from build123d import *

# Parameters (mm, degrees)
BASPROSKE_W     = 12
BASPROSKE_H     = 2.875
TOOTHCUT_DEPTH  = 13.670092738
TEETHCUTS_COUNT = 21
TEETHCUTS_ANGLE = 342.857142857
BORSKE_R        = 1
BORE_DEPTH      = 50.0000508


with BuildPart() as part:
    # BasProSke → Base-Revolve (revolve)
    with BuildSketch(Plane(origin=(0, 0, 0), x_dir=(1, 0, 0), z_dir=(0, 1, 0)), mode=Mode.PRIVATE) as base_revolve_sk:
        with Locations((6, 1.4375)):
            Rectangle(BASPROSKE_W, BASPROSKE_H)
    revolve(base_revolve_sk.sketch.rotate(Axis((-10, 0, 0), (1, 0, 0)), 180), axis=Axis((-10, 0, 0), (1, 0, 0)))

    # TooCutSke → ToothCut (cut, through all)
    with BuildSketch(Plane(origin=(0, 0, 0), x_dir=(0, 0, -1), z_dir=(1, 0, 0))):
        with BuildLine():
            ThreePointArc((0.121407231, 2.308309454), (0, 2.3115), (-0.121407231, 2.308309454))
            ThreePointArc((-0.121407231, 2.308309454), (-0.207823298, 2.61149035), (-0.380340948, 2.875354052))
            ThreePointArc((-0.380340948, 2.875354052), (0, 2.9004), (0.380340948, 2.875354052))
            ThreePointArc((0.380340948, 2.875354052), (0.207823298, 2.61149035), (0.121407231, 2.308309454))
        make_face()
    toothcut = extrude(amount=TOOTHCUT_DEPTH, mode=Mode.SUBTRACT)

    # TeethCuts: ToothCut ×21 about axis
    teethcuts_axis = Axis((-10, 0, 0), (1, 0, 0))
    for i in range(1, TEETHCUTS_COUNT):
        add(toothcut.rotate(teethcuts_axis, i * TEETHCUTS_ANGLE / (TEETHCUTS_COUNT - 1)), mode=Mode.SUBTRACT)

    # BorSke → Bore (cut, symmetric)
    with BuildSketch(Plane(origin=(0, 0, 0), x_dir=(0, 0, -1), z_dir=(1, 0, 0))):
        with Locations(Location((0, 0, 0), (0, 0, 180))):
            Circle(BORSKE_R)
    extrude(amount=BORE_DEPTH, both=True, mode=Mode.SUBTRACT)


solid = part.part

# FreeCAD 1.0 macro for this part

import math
import FreeCAD as App
import Part
import Sketcher

V = App.Vector

doc = App.newDocument("Part")
params = doc.addObject("Spreadsheet::Sheet", "Params")
for row, (alias, value) in enumerate([
    ("sketch1_width", "12 mm"),
    ("revolution_angle", "360 deg"),
    ("sketch2_radius", "1.05 mm"),
    ("sketch3_diameter", "2 mm"),
    ("pocket2_length", "100.000102 mm"),
], start=1):
    params.set(f"A{row}", alias)
    params.set(f"B{row}", "=" + value)
    params.setAlias(f"B{row}", alias)

body = doc.addObject("PartDesign::Body", "Body")

# Sketch on XZ plane
sketch1 = body.newObject("Sketcher::SketchObject", "Sketch")
sketch1.AttachmentSupport = (doc.getObject("XZ_Plane"), [""])
sketch1.MapMode = "FlatFace"
sketch1.addGeometry([
    Part.LineSegment(V(0, -2.9, 0), V(0, 0, 0)),
    Part.LineSegment(V(0, 0, 0), V(12, 0, 0)),
    Part.LineSegment(V(12, 0, 0), V(12, -2.9, 0)),
    Part.LineSegment(V(12, -2.9, 0), V(0, -2.9, 0)),
], False)
sketch1.addConstraint([
    Sketcher.Constraint("Coincident", 0, 2, 1, 1),
    Sketcher.Constraint("Coincident", 1, 2, 2, 1),
    Sketcher.Constraint("Coincident", 2, 2, 3, 1),
    Sketcher.Constraint("Coincident", 3, 2, 0, 1),
    Sketcher.Constraint("Vertical", 0),
    Sketcher.Constraint("Horizontal", 1),
    Sketcher.Constraint("Vertical", 2),
    Sketcher.Constraint("Horizontal", 3),
    Sketcher.Constraint("Coincident", 0, 2, -1, 1),
    Sketcher.Constraint("DistanceX", 1, 1, 1, 2, 12.0),
    Sketcher.Constraint("DistanceY", 0, 1, 0, 2, 2.875),
])
sketch1.setExpression("Constraints[9]", "Params.sketch1_width")
revolution = body.newObject("PartDesign::Revolution", "Revolution")
revolution.Profile = sketch1
revolution.ReferenceAxis = (sketch1, ["H_Axis"])
revolution.setExpression("Angle", "Params.revolution_angle")

# Sketch on YZ plane
sketch2 = body.newObject("Sketcher::SketchObject", "Sketch001")
sketch2.AttachmentSupport = (doc.getObject("YZ_Plane"), [""])
sketch2.MapMode = "FlatFace"
sketch2.addGeometry([
    Part.ArcOfCircle(Part.Circle(V(0, 0, 0), V(0, 0, 1), 2.31), math.radians(-3.01), math.radians(3.01)),
    Part.ArcOfCircle(Part.Circle(V(2.18, -1.16, 0), V(0, 0, 1), 1.05), math.radians(48), math.radians(83)),
    Part.ArcOfCircle(Part.Circle(V(0, 0, 0), V(0, 0, 1), 2.9), math.radians(-7.54), math.radians(7.54)),
    Part.ArcOfCircle(Part.Circle(V(2.18, 1.16, 0), V(0, 0, 1), 1.05), math.radians(-83), math.radians(-48)),
], False)
sketch2.addConstraint([
    Sketcher.Constraint("Coincident", 0, 1, 1, 2),
    Sketcher.Constraint("Coincident", 1, 1, 2, 1),
    Sketcher.Constraint("Coincident", 2, 2, 3, 2),
    Sketcher.Constraint("Coincident", 3, 1, 0, 2),
    Sketcher.Constraint("Coincident", 0, 3, -1, 1),
    Sketcher.Constraint("Coincident", 2, 3, -1, 1),
    Sketcher.Constraint("Equal", 1, 3),
    Sketcher.Constraint("Symmetric", 1, 3, 3, 3, -1),
    Sketcher.Constraint("Radius", 1, 1.05),
    Sketcher.Constraint("Radius", 0, 2.3115),
    Sketcher.Constraint("Radius", 2, 2.9004),
    Sketcher.Constraint("DistanceX", -1, 1, 0, 1, 2.308309),
    Sketcher.Constraint("DistanceY", 1, 1, -1, 1, 0.380341),
])
sketch2.setExpression("Constraints[8]", "Params.sketch2_radius")
pocket1 = body.newObject("PartDesign::Pocket", "Pocket")
pocket1.Profile = sketch2
pocket1.Type = "ThroughAll"
pocket1.Reversed = True
doc.recompute()

polarpattern = body.newObject("PartDesign::PolarPattern", "PolarPattern")
polarpattern.Originals = [pocket1]
polarpattern.Axis = (doc.getObject("X_Axis"), [""])
polarpattern.Angle = 360
polarpattern.Occurrences = 21
body.Tip = polarpattern

# Sketch on YZ plane
sketch3 = body.newObject("Sketcher::SketchObject", "Sketch002")
sketch3.AttachmentSupport = (doc.getObject("YZ_Plane"), [""])
sketch3.MapMode = "FlatFace"
sketch3.addGeometry(Part.Circle(V(0, 0, 0), V(0, 0, 1), 1), False)
sketch3.addConstraint([
    Sketcher.Constraint("Coincident", 0, 3, -1, 1),
    Sketcher.Constraint("Diameter", 0, 2.0),
])
sketch3.setExpression("Constraints[1]", "Params.sketch3_diameter")
pocket2 = body.newObject("PartDesign::Pocket", "Pocket001")
pocket2.Profile = sketch3
pocket2.setExpression("Length", "Params.pocket2_length")
pocket2.Midplane = True

doc.recompute()
